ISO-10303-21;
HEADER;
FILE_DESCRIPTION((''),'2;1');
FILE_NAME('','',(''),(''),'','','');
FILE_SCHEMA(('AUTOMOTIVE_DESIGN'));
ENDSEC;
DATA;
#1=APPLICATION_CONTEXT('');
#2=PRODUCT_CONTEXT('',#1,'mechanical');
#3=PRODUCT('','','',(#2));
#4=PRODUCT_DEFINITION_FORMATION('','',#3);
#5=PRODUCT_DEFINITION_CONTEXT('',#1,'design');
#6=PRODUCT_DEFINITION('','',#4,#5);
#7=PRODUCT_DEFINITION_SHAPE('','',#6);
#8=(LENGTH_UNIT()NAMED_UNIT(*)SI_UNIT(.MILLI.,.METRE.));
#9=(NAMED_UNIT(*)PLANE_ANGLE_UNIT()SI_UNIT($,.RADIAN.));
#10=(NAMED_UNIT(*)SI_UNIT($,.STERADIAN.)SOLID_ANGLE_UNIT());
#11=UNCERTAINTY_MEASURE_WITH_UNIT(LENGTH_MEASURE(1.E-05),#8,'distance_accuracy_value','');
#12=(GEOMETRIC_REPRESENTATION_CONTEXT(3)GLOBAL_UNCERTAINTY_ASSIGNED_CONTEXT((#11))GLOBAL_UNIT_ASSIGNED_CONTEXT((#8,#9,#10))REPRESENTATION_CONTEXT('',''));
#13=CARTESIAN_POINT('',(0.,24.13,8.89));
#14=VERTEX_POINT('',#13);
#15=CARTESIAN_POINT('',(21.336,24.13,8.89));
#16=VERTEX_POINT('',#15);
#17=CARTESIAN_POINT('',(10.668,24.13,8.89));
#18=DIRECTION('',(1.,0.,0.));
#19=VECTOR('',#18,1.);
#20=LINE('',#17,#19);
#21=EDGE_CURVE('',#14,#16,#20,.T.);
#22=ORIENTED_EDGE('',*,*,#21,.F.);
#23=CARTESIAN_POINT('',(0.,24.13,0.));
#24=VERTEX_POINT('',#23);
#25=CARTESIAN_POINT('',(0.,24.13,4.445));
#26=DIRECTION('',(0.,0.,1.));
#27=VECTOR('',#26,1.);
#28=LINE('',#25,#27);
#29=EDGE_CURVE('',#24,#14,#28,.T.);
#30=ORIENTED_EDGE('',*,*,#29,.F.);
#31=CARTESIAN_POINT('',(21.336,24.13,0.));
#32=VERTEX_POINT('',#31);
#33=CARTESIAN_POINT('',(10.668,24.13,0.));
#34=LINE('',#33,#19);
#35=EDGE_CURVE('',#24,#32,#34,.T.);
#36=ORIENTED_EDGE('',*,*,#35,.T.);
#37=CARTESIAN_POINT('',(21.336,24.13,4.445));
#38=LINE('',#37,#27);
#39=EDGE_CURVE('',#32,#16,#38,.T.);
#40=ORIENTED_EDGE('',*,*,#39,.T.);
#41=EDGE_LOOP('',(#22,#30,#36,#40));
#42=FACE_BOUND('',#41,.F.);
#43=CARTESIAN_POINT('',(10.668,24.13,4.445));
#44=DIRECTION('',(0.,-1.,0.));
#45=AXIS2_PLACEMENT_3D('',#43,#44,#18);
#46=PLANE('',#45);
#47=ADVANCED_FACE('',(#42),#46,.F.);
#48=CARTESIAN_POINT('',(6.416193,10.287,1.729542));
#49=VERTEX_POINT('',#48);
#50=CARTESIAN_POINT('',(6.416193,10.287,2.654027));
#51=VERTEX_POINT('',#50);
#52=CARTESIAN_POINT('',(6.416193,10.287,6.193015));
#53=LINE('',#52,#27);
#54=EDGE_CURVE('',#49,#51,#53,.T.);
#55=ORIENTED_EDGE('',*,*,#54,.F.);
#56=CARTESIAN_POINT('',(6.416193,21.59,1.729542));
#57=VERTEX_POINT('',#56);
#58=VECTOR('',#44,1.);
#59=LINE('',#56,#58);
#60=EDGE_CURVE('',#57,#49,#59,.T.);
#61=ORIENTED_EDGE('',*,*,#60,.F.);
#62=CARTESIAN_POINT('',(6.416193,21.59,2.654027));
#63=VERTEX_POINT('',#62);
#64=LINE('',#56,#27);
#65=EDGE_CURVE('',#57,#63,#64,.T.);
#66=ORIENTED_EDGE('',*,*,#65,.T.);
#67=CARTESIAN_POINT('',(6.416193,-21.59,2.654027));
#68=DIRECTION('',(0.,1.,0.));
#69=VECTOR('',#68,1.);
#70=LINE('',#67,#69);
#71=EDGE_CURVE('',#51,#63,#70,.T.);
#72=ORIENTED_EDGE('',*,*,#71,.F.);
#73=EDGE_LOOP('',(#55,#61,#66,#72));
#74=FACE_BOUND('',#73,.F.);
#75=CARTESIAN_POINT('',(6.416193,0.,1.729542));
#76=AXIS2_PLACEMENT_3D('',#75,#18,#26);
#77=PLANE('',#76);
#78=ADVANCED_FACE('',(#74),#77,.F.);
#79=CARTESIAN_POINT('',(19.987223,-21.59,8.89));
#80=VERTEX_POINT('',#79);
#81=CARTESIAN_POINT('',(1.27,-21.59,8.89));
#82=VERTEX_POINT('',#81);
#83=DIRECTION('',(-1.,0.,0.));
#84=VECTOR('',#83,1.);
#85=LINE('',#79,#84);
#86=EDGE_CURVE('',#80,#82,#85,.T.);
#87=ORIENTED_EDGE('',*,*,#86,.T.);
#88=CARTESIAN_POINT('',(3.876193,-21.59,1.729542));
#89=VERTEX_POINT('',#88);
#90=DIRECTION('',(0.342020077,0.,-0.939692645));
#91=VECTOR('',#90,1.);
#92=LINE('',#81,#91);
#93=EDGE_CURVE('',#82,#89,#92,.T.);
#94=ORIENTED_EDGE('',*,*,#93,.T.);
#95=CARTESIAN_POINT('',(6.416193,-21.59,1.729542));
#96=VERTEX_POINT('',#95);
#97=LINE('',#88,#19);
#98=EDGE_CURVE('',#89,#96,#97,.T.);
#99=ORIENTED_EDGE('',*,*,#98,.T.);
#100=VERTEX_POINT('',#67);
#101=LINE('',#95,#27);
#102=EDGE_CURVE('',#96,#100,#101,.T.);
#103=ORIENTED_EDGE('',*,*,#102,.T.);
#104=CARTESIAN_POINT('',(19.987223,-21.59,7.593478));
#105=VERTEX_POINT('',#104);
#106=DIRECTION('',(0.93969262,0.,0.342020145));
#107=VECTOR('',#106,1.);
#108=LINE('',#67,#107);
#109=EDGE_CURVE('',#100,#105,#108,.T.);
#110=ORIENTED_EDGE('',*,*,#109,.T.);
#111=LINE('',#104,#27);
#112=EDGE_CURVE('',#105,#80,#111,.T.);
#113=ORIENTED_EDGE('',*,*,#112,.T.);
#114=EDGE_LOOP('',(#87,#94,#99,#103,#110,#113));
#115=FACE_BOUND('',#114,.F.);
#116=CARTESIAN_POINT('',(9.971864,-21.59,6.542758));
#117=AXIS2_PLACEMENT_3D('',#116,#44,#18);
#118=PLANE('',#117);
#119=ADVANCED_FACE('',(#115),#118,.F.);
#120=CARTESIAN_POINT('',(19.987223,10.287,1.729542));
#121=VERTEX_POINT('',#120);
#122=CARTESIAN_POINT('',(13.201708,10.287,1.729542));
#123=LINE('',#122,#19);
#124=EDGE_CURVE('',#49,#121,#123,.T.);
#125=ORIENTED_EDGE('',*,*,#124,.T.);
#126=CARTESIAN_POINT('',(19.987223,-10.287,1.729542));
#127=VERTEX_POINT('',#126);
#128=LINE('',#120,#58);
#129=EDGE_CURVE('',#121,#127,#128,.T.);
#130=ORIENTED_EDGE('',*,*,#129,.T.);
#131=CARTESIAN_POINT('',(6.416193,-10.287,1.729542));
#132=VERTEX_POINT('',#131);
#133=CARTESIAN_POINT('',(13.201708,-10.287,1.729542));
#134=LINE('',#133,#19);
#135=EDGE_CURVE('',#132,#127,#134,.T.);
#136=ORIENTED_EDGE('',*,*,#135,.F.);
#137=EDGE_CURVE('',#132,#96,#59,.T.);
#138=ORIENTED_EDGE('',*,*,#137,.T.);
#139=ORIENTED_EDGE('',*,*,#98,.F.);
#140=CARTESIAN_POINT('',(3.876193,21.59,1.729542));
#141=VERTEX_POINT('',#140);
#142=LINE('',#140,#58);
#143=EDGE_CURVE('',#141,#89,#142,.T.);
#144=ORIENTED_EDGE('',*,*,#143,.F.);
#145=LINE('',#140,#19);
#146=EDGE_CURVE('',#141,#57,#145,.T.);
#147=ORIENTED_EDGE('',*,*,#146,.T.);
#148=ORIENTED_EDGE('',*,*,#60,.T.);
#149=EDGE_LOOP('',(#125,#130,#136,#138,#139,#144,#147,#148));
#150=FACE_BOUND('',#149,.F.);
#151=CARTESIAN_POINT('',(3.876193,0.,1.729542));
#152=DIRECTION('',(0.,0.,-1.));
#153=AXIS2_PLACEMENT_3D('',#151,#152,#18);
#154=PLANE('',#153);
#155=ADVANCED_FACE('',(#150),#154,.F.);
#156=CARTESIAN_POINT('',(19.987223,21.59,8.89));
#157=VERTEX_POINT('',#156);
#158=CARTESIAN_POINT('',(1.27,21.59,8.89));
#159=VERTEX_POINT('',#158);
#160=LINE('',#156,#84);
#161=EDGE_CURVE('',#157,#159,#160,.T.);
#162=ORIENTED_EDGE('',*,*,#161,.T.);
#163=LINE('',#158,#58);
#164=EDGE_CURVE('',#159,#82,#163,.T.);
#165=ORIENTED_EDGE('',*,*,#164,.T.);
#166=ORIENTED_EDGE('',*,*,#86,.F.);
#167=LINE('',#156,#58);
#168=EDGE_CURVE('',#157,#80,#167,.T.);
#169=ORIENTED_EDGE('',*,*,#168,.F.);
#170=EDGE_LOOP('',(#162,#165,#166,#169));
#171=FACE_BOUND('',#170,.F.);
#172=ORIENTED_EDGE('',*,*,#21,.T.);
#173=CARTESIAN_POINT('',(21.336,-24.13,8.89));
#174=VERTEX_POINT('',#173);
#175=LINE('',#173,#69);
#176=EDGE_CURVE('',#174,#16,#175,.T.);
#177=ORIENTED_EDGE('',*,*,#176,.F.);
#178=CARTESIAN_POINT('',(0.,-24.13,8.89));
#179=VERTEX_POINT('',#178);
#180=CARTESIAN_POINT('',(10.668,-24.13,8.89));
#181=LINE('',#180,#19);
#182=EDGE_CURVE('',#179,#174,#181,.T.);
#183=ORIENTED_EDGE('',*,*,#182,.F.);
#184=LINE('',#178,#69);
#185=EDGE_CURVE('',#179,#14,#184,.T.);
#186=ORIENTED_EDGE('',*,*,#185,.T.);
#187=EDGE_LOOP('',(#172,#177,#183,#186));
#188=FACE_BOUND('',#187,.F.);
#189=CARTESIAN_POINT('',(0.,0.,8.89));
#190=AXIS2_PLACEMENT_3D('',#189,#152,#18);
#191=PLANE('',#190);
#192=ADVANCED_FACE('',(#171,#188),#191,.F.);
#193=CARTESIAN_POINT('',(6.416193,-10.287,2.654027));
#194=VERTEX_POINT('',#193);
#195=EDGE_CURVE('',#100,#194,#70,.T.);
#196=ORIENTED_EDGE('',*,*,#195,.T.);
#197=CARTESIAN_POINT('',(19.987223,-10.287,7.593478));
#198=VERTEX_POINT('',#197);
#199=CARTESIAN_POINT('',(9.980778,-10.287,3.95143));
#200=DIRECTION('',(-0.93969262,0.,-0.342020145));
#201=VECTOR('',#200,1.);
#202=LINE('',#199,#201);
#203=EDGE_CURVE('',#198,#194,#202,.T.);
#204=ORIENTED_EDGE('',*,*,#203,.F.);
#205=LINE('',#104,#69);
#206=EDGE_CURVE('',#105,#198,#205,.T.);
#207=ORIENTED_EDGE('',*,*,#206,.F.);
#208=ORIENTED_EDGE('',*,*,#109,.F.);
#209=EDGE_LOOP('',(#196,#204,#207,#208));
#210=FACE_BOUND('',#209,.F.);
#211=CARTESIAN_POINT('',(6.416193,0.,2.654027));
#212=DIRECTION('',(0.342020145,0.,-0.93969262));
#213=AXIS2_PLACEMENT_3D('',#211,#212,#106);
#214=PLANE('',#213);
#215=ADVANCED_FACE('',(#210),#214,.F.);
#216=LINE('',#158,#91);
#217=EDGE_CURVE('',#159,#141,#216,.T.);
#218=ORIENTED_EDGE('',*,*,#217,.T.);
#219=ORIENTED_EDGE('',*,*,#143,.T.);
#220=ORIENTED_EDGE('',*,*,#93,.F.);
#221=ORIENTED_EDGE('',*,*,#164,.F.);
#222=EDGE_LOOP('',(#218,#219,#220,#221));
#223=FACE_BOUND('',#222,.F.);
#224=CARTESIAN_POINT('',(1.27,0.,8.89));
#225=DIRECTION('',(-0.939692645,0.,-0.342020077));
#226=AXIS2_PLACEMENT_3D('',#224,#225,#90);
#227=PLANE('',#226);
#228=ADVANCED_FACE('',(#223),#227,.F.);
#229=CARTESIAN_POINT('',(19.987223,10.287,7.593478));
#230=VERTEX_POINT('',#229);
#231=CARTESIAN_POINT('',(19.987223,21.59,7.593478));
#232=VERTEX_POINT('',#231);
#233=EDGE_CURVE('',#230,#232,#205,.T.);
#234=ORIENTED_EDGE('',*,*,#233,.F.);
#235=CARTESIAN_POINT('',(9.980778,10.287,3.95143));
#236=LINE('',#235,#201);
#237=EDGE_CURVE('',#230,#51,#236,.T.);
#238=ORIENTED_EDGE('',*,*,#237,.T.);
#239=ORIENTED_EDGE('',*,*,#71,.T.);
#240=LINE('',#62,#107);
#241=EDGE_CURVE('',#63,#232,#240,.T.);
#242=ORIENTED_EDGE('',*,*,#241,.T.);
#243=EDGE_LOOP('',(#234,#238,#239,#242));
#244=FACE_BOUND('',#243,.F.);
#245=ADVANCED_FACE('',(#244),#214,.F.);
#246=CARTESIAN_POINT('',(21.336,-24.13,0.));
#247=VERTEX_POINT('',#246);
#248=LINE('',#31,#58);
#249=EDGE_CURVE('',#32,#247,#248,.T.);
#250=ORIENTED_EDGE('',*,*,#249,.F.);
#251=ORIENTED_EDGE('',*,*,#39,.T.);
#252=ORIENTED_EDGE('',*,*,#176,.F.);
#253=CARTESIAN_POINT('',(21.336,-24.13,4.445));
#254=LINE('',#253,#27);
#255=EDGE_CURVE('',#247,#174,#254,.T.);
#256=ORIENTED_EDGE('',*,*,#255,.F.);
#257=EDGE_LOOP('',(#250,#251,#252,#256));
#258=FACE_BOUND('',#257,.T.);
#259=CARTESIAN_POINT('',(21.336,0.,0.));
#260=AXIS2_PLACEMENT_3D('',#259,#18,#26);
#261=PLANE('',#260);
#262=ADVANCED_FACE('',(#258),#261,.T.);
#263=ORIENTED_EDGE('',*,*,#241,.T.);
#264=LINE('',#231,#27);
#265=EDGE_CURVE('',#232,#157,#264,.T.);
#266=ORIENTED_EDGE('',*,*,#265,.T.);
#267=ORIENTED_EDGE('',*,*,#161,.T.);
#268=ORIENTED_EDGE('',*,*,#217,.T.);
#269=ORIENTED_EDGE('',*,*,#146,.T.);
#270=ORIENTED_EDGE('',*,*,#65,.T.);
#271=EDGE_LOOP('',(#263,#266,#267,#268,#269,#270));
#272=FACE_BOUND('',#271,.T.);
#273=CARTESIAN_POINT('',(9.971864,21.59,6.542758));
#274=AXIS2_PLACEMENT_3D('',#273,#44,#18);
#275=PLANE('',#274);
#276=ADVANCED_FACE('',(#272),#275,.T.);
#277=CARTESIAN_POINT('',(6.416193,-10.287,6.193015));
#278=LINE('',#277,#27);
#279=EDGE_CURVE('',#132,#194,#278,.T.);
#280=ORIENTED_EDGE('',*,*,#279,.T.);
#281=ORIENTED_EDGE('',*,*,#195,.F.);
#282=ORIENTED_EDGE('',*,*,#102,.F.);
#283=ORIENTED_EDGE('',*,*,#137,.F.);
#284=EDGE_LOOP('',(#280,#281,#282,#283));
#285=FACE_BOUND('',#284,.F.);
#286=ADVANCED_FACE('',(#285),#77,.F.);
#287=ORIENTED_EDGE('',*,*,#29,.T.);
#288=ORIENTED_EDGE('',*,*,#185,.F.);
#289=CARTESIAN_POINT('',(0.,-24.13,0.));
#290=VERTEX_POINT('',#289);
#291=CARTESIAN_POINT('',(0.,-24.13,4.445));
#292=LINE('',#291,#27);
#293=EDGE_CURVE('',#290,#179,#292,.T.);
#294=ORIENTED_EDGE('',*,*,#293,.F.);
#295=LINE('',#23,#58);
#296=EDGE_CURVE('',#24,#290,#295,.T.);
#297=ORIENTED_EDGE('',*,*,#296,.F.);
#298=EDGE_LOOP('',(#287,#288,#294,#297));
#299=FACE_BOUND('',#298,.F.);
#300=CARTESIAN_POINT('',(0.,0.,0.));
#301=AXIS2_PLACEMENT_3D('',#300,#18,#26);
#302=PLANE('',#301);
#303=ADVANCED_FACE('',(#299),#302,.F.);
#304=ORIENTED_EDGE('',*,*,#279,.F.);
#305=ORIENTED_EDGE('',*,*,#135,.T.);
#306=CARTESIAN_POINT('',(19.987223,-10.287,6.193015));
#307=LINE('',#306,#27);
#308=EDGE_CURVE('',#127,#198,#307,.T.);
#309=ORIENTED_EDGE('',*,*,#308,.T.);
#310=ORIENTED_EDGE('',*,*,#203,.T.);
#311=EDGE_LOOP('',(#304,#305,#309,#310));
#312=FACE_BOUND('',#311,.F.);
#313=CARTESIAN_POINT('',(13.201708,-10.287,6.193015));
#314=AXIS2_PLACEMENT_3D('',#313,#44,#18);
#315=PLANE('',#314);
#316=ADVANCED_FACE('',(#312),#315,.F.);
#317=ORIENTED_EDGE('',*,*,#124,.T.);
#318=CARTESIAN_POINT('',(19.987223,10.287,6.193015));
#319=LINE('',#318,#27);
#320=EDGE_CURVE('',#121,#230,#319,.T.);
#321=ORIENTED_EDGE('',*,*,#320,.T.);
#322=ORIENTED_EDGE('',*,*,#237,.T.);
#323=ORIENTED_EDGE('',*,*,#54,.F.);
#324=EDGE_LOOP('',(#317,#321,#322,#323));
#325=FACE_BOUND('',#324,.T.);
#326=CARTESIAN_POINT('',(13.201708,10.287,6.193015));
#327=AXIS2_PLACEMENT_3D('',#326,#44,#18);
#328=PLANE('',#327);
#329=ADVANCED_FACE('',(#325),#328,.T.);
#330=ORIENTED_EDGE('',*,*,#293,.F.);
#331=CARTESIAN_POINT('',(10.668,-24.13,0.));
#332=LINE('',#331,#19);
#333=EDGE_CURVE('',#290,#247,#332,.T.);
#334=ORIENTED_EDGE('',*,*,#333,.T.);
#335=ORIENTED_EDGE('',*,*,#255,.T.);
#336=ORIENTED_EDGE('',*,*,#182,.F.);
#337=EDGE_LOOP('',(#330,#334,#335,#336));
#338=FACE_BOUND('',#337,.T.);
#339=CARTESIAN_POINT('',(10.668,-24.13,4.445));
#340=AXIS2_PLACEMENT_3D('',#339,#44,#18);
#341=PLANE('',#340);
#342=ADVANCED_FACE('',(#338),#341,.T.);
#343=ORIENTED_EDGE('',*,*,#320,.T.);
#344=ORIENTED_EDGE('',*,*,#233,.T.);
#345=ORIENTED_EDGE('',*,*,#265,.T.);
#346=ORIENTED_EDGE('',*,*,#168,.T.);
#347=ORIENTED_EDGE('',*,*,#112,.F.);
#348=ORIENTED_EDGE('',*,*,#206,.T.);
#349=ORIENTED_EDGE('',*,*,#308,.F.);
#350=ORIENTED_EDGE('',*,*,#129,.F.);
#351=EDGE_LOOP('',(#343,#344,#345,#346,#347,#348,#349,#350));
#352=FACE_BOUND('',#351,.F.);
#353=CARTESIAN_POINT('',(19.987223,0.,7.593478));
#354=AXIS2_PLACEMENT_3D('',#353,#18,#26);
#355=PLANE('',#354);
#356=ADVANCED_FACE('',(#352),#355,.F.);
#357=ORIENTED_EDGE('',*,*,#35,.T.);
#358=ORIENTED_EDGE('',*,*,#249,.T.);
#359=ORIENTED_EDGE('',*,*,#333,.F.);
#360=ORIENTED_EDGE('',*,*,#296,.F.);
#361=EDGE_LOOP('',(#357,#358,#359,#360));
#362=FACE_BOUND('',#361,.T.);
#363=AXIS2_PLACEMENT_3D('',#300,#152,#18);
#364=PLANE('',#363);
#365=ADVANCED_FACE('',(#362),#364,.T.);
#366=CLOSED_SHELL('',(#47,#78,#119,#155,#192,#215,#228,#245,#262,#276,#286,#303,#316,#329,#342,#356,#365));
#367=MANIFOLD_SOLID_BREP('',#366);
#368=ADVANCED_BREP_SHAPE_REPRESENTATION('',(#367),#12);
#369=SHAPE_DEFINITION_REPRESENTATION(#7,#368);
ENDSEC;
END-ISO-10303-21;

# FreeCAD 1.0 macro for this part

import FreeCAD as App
import Part
import Sketcher
Q = App.Units.Quantity


def add_polygon(sketch, points):
    """Adds a closed chain of lines whose ends are joined by coincident constraints."""
    first, n = sketch.GeometryCount, len(points)
    for a, b in zip(points, points[1:] + points[:1]):
        sketch.addGeometry(Part.LineSegment(App.Vector(*a, 0), App.Vector(*b, 0)), False)
    for i in range(n):
        sketch.addConstraint(Sketcher.Constraint("Coincident", first + i, 2, first + (i + 1) % n, 1))

doc = App.newDocument("Part")
body = doc.addObject("PartDesign::Body", "Body")

# Sketch on XZ plane
sketch1 = doc.addObject("Sketcher::SketchObject", "Sketch")
body.addObject(sketch1)
sketch1.AttachmentSupport = (doc.XZ_Plane, [""])
sketch1.MapMode = "FlatFace"
add_polygon(sketch1, [(0, 9), (0, 0), (21, 0), (21, 9)])  # lines 0-3
sketch1.addConstraint(Sketcher.Constraint("Vertical", 0))
sketch1.addConstraint(Sketcher.Constraint("Horizontal", 1))
sketch1.addConstraint(Sketcher.Constraint("Vertical", 2))
sketch1.addConstraint(Sketcher.Constraint("Horizontal", 3))
sketch1.addConstraint(Sketcher.Constraint("Coincident", 0, 2, -1, 1))
sketch1.addConstraint(Sketcher.Constraint("DistanceX", 1, 1, 1, 2, Q("0.84 in")))
sketch1.addConstraint(Sketcher.Constraint("DistanceY", 0, 2, 0, 1, Q("0.35 in")))
pad1 = doc.addObject("PartDesign::Pad", "Pad")
body.addObject(pad1)
pad1.Profile = sketch1
pad1.Length = Q("1.9 in")
pad1.Midplane = True

# Sketch on XZ plane
sketch2 = doc.addObject("Sketcher::SketchObject", "Sketch001")
body.addObject(sketch2)
sketch2.AttachmentSupport = (doc.XZ_Plane, [""])
sketch2.MapMode = "FlatFace"
add_polygon(sketch2, [(20, 8.9), (1.3, 8.9), (3.9, 1.7), (6.4, 1.7), (6.4, 2.7), (20, 7.6)])  # lines 0-5
sketch2.addConstraint(Sketcher.Constraint("Horizontal", 0))
sketch2.addConstraint(Sketcher.Constraint("Horizontal", 2))
sketch2.addConstraint(Sketcher.Constraint("Vertical", 3))
sketch2.addConstraint(Sketcher.Constraint("Vertical", 5))
sketch2.addConstraint(Sketcher.Constraint("Perpendicular", 1, 4))
sketch2.addConstraint(Sketcher.Constraint("DistanceX", 2, 1, 2, 2, Q("0.1 in")))
sketch2.addConstraint(Sketcher.Constraint("Angle", 1, Q("-70.000004 deg")))
sketch2.addConstraint(Sketcher.Constraint("Distance", 1, Q("0.3 in")))
sketch2.addConstraint(Sketcher.Constraint("DistanceX", -1, 1, 0, 2, Q("0.05 in")))
sketch2.addConstraint(Sketcher.Constraint("DistanceY", -1, 1, 0, 2, Q("0.35 in")))
sketch2.addConstraint(Sketcher.Constraint("Distance", 4, Q("14.441988 mm")))
sketch2.addConstraint(Sketcher.Constraint("DistanceY", 3, 1, 3, 2, Q("0.924485 mm")))
pocket1 = doc.addObject("PartDesign::Pocket", "Pocket")
body.addObject(pocket1)
pocket1.Profile = sketch2
pocket1.Length = Q("1.7 in")
pocket1.Midplane = True

# Sketch on XZ plane
sketch3 = doc.addObject("Sketcher::SketchObject", "Sketch002")
body.addObject(sketch3)
sketch3.AttachmentSupport = (doc.XZ_Plane, [""])
sketch3.MapMode = "FlatFace"
add_polygon(sketch3, [(6, 11), (6, 2), (20, 2), (20, 11)])  # lines 0-3
sketch3.addConstraint(Sketcher.Constraint("Vertical", 0))
sketch3.addConstraint(Sketcher.Constraint("Horizontal", 1))
sketch3.addConstraint(Sketcher.Constraint("Vertical", 2))
sketch3.addConstraint(Sketcher.Constraint("Horizontal", 3))
sketch3.addConstraint(Sketcher.Constraint("DistanceX", 1, 1, 1, 2, Q("13.57103 mm")))
sketch3.addConstraint(Sketcher.Constraint("DistanceY", 0, 2, 0, 1, Q("8.926946 mm")))
sketch3.addConstraint(Sketcher.Constraint("DistanceY", -1, 1, 0, 2, Q("1.729542 mm")))
sketch3.addConstraint(Sketcher.Constraint("DistanceX", -1, 1, 0, 2, Q("6.416193 mm")))
pocket2 = doc.addObject("PartDesign::Pocket", "Pocket001")
body.addObject(pocket2)
pocket2.Profile = sketch3
pocket2.Length = Q("0.81 in")
pocket2.Midplane = True

doc.recompute()
